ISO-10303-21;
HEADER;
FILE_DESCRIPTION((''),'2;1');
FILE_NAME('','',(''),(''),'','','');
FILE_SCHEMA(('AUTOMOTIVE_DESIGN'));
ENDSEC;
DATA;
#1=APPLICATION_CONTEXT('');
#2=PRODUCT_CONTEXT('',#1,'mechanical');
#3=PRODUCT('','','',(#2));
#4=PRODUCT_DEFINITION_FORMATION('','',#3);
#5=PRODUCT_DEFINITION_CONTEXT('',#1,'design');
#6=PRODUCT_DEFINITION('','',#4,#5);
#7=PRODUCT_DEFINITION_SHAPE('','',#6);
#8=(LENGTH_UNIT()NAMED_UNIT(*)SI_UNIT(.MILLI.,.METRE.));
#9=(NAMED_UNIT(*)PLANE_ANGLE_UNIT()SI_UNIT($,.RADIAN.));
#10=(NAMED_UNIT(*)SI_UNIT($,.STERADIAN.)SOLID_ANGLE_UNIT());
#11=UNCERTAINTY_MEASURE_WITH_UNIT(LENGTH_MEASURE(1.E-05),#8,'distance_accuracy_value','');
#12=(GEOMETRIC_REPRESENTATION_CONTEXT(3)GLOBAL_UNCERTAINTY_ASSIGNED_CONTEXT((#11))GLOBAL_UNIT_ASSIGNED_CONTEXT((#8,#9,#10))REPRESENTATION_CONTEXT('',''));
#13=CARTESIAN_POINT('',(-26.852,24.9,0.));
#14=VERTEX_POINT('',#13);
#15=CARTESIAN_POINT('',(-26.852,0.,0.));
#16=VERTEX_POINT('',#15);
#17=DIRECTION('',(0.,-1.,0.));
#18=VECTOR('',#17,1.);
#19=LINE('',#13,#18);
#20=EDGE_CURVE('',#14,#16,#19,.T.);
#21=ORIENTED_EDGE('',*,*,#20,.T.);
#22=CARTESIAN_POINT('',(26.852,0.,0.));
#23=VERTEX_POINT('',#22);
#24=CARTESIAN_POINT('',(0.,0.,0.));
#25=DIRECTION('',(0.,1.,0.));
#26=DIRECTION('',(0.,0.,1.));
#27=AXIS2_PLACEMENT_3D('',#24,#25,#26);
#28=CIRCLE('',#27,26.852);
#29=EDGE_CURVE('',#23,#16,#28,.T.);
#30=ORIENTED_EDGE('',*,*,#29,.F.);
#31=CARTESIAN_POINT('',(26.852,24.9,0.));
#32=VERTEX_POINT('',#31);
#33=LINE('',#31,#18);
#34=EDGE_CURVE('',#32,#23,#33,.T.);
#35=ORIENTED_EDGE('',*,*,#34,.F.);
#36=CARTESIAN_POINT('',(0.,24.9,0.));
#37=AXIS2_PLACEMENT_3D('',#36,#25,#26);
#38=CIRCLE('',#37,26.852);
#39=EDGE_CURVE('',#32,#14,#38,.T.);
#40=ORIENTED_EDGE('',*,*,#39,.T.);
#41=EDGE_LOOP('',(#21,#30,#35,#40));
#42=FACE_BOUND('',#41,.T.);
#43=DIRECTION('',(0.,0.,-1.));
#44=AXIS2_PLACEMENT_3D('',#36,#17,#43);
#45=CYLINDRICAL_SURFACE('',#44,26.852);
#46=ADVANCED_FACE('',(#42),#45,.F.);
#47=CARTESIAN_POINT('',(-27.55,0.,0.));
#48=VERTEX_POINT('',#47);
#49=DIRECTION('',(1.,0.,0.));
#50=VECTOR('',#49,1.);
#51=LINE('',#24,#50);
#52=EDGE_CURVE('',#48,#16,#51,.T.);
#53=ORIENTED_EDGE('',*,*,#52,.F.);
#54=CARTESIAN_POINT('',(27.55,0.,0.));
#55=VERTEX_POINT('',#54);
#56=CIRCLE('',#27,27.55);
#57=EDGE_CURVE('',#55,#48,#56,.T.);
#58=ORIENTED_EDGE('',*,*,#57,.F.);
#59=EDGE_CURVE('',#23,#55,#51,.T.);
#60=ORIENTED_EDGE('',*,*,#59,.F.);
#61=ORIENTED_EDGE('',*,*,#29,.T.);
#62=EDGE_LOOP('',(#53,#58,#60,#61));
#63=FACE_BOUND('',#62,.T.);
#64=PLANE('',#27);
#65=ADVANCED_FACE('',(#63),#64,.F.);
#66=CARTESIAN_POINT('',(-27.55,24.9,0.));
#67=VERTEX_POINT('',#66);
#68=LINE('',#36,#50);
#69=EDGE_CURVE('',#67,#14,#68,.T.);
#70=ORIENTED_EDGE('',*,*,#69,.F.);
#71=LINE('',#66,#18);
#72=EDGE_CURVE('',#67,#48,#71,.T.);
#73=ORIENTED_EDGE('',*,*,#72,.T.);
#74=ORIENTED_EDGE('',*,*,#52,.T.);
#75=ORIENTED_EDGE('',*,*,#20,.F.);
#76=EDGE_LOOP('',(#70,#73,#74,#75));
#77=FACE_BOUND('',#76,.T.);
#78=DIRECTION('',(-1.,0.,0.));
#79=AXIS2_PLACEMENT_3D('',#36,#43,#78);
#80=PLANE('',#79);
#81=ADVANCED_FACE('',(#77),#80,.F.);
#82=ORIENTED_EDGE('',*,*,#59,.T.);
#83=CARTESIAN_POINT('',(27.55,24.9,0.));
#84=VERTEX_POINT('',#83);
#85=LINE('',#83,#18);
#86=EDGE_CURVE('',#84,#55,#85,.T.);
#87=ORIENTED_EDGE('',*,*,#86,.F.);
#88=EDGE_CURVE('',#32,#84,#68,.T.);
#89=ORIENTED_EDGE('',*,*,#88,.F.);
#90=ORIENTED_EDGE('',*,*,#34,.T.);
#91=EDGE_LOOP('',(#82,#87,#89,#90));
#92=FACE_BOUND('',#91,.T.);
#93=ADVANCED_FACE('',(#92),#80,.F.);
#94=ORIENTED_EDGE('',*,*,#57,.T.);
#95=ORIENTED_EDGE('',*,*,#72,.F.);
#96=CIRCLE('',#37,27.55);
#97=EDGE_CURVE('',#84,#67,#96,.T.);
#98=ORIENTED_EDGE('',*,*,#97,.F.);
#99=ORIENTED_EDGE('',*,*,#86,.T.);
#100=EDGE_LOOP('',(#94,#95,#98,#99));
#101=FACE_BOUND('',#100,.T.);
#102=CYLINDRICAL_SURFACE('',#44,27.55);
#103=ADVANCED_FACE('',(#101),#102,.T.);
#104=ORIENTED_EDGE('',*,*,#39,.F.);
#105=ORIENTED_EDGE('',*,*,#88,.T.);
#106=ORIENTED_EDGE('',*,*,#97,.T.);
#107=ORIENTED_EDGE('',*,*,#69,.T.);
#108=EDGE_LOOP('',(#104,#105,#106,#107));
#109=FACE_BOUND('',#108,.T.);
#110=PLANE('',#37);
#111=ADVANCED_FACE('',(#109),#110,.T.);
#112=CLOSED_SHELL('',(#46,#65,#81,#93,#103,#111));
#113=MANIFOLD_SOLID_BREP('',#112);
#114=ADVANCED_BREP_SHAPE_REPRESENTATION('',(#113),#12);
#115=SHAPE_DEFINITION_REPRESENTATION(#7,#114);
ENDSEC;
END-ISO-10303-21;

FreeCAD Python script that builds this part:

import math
import FreeCAD as App
import Part
import Sketcher
from FreeCAD import Vector

doc = App.newDocument("Part")
body = doc.addObject("PartDesign::Body", "Body")

# Sketch on XZ plane
sketch1 = body.newObject("Sketcher::SketchObject", "Sketch")
sketch1.AttachmentSupport = (doc.getObject("XZ_Plane"), [""])
sketch1.MapMode = "FlatFace"
sketch1.addGeometry([
    Part.ArcOfCircle(Part.Circle(Vector(0, 0, 0), Vector(0, 0, 1), 26.852), math.radians(180), math.radians(360)),
    Part.LineSegment(Vector(26.852, 0, 0), Vector(27.55, 0, 0)),
    Part.ArcOfCircle(Part.Circle(Vector(0, 0, 0), Vector(0, 0, 1), 27.55), math.radians(180), math.radians(360)),
    Part.LineSegment(Vector(-27.55, 0, 0), Vector(-26.852, 0, 0)),
], False)
sketch1.addConstraint([
    Sketcher.Constraint("Coincident", 0, 2, 1, 1),
    Sketcher.Constraint("Coincident", 1, 2, 2, 2),
    Sketcher.Constraint("Coincident", 2, 1, 3, 1),
    Sketcher.Constraint("Coincident", 3, 2, 0, 1),
    Sketcher.Constraint("Horizontal", 1),
    Sketcher.Constraint("Horizontal", 3),
    Sketcher.Constraint("Coincident", 0, 3, -1, 1),
    Sketcher.Constraint("Coincident", 2, 3, -1, 1),
    Sketcher.Constraint("PointOnObject", 0, 2, -1),
    Sketcher.Constraint("PointOnObject", 2, 1, -1),
    Sketcher.Constraint("Radius", 2, 27.55),
    Sketcher.Constraint("Radius", 0, 26.852),
])
pad1 = body.newObject("PartDesign::Pad", "Pad")
pad1.Profile = sketch1
pad1.Length = 24.9
pad1.Reversed = True

doc.recompute()
